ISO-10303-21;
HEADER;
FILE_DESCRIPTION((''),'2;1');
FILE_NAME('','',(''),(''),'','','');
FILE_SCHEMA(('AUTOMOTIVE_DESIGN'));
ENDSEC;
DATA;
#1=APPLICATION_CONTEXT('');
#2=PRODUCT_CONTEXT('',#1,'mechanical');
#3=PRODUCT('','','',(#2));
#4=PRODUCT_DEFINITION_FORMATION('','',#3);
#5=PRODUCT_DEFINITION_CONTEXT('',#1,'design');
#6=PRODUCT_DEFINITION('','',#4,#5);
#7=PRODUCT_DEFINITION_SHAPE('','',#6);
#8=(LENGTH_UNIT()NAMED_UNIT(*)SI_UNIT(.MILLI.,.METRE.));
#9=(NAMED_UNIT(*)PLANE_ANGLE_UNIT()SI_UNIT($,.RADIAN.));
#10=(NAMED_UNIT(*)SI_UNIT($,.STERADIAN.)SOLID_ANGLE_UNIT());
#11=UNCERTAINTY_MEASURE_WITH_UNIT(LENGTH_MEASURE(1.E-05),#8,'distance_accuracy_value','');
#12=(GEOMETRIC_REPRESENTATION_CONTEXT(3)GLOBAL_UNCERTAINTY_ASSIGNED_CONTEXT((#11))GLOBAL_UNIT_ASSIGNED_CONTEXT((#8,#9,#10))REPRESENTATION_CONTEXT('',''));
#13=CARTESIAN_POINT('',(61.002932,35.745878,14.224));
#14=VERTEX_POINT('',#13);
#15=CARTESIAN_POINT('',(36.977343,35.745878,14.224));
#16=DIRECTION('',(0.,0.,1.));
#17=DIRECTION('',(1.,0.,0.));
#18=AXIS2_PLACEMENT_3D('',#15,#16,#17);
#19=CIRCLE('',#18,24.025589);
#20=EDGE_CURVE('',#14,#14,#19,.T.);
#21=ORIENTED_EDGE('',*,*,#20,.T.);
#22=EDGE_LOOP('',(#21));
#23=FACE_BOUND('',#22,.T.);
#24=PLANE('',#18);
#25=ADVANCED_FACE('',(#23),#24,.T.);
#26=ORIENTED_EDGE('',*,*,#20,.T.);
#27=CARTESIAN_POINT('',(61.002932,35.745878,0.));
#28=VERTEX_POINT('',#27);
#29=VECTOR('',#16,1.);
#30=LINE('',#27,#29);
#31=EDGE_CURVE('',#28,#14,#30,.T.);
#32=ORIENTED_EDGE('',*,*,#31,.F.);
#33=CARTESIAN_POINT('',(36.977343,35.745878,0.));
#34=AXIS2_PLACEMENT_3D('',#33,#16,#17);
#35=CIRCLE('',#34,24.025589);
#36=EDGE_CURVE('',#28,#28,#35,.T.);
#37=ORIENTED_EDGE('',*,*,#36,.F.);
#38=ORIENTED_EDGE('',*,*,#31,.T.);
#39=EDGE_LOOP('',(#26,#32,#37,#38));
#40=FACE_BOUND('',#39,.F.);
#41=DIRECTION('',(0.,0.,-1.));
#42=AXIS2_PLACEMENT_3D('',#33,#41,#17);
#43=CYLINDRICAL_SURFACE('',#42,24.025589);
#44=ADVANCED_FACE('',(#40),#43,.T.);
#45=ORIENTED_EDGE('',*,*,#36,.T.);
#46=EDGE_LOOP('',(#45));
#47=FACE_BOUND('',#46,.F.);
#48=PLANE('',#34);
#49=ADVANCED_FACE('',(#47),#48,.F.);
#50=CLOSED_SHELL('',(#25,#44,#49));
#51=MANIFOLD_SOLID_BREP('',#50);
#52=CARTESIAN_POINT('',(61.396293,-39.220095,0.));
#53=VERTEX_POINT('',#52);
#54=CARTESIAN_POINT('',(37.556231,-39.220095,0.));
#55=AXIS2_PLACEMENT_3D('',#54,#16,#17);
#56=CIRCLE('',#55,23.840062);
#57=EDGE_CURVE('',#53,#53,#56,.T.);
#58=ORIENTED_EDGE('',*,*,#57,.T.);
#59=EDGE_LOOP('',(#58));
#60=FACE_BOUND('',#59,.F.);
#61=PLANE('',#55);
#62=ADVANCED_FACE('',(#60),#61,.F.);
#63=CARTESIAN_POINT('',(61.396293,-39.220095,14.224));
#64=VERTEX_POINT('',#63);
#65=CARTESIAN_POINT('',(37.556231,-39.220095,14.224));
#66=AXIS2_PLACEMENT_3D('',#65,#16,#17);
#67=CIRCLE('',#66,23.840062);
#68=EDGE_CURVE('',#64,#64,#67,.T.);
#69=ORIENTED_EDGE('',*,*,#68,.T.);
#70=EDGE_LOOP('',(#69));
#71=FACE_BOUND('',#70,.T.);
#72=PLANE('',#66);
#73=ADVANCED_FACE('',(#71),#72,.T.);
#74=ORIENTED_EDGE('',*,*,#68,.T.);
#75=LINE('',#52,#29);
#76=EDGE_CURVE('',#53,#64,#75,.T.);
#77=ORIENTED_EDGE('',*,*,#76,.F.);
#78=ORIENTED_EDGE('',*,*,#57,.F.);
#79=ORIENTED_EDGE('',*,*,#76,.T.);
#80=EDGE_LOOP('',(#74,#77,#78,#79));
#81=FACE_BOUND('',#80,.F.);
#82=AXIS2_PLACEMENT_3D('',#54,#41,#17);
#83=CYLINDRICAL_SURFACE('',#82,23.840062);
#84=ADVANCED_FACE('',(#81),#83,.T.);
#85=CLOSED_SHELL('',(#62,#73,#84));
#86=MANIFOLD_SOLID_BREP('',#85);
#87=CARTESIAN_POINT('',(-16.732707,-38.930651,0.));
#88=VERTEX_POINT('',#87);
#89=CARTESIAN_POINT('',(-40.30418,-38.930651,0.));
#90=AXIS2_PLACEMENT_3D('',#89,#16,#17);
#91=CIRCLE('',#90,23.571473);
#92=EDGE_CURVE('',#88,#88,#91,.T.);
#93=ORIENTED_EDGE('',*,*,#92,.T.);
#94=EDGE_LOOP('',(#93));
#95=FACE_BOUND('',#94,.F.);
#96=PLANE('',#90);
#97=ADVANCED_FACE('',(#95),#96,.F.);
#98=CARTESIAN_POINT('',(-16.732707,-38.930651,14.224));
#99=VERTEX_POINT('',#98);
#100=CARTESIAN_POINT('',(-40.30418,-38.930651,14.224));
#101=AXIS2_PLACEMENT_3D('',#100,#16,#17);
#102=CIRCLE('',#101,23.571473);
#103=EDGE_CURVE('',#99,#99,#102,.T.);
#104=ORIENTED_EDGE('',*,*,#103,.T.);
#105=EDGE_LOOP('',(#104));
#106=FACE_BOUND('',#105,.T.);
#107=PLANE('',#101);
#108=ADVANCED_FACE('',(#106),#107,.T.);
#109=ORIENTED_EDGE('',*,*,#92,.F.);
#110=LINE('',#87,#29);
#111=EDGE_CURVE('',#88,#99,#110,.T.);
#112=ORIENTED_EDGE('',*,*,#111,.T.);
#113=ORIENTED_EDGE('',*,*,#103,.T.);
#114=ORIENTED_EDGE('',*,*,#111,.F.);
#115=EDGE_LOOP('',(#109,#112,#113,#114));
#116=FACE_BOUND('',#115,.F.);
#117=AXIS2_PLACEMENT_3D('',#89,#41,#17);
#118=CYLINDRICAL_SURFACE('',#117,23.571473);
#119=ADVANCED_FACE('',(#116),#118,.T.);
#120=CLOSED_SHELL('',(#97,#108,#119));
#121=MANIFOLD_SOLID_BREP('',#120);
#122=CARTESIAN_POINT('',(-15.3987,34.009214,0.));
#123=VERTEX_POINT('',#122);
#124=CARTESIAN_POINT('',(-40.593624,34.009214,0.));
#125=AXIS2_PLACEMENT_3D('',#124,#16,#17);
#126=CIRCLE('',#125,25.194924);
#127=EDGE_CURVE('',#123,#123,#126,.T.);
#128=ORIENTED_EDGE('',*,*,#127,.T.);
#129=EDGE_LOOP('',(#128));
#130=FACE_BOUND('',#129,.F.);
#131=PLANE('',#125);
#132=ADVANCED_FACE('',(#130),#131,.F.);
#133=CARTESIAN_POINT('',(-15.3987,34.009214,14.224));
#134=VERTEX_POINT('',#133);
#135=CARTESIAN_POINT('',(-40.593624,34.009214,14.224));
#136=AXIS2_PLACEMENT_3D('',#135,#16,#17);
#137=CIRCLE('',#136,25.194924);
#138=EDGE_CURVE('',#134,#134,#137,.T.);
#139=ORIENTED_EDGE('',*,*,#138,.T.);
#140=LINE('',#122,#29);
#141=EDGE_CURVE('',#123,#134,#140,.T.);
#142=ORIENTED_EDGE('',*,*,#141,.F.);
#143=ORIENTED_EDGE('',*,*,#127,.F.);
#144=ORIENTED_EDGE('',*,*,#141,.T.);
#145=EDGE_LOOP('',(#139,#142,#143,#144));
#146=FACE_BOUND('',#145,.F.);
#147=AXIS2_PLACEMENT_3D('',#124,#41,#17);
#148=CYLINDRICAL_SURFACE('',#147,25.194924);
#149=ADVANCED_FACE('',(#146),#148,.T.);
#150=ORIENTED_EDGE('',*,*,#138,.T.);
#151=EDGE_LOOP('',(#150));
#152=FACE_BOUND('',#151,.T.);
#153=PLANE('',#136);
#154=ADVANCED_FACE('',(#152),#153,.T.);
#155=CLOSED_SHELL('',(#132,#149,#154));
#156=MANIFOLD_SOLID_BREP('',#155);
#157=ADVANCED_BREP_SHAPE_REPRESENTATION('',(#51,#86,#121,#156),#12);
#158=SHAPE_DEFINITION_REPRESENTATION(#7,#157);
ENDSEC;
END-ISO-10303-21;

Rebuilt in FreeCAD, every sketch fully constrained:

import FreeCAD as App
import Part
import Sketcher
from FreeCAD import Vector

doc = App.newDocument("Part")
params = doc.addObject("Spreadsheet::Sheet", "Params")
for row, (alias, value) in enumerate([
    ("pad1_length", "0.56 in"),
], start=1):
    params.set(f"A{row}", alias)
    params.set(f"B{row}", "=" + value)
    params.setAlias(f"B{row}", alias)

body = doc.addObject("PartDesign::Body", "Body")
body.AllowCompound = True

# Sketch on XY plane
sketch1 = body.newObject("Sketcher::SketchObject", "Sketch")
sketch1.AttachmentSupport = (doc.getObject("XY_Plane"), [""])
sketch1.MapMode = "FlatFace"
sketch1.addGeometry(Part.Circle(Vector(-40.593624, 34.009214, 0), Vector(0, 0, 1), 25.194924), False)
sketch1.addGeometry(Part.Circle(Vector(36.977343, 35.745878, 0), Vector(0, 0, 1), 24.025589), False)
sketch1.addGeometry(Part.Circle(Vector(-40.30418, -38.930651, 0), Vector(0, 0, 1), 23.571473), False)
sketch1.addGeometry(Part.Circle(Vector(37.556231, -39.220095, 0), Vector(0, 0, 1), 23.840062), False)
sketch1.addConstraint(Sketcher.Constraint("Diameter", 0, 50.389848))
sketch1.addConstraint(Sketcher.Constraint("Diameter", 1, 48.051178))
sketch1.addConstraint(Sketcher.Constraint("Diameter", 2, 47.142946))
sketch1.addConstraint(Sketcher.Constraint("Diameter", 3, 47.680124))
sketch1.addConstraint(Sketcher.Constraint("DistanceX", 2, 3, -1, 1, 40.30418))
sketch1.addConstraint(Sketcher.Constraint("DistanceY", 2, 3, -1, 1, 38.930651))
sketch1.addConstraint(Sketcher.Constraint("DistanceX", -1, 1, 3, 3, 37.556231))
sketch1.addConstraint(Sketcher.Constraint("DistanceY", 2, 3, 1, 3, 74.676529))
sketch1.addConstraint(Sketcher.Constraint("DistanceY", 3, 3, 0, 3, 73.229309))
sketch1.addConstraint(Sketcher.Constraint("DistanceX", 0, 3, -1, 1, 40.593624))
sketch1.addConstraint(Sketcher.Constraint("DistanceY", -1, 1, 0, 3, 34.009214))
sketch1.addConstraint(Sketcher.Constraint("DistanceX", -1, 1, 1, 3, 36.977343))
pad1 = body.newObject("PartDesign::Pad", "Pad")
pad1.Profile = sketch1
pad1.setExpression("Length", "Params.pad1_length")

doc.recompute()
